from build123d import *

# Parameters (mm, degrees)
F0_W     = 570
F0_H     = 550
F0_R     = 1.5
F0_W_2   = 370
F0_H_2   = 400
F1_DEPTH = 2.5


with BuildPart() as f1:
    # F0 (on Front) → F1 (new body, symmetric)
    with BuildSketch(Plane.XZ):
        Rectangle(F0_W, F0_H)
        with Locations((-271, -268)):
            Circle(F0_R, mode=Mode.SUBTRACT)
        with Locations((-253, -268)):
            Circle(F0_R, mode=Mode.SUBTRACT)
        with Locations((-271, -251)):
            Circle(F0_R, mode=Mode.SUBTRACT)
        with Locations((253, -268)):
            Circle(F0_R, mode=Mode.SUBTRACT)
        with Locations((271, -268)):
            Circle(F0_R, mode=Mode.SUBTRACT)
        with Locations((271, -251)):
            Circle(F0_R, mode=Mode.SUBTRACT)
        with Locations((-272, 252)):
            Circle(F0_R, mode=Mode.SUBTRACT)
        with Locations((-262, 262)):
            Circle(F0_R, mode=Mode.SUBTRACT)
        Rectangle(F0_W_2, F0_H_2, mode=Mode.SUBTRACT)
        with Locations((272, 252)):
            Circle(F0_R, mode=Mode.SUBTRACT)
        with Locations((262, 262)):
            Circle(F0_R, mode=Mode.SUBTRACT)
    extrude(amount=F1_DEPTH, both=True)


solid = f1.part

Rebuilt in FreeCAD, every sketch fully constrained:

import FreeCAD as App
import Part
import Sketcher

V = App.Vector

doc = App.newDocument("Part")
params = doc.addObject("Spreadsheet::Sheet", "Params")
for row, (alias, value) in enumerate([
    ("sketch1_diameter", "3 mm"),
    ("sketch1_width", "570 mm"),
    ("sketch1_width2", "370 mm"),
    ("sketch1_height", "550 mm"),
    ("sketch1_height2", "400 mm"),
    ("pad1_length", "5 mm"),
], start=1):
    params.set(f"A{row}", alias)
    params.set(f"B{row}", "=" + value)
    params.setAlias(f"B{row}", alias)

body = doc.addObject("PartDesign::Body", "Body")

# Sketch on XZ plane
sketch1 = body.newObject("Sketcher::SketchObject", "Sketch")
sketch1.AttachmentSupport = (doc.getObject("XZ_Plane"), [""])
sketch1.MapMode = "FlatFace"
sketch1.addGeometry(Part.LineSegment(V(-285, 275, 0), V(-285, -275, 0)), False)
sketch1.addGeometry(Part.LineSegment(V(-285, -275, 0), V(285, -275, 0)), False)
sketch1.addGeometry(Part.LineSegment(V(285, -275, 0), V(285, 275, 0)), False)
sketch1.addGeometry(Part.LineSegment(V(285, 275, 0), V(-285, 275, 0)), False)
sketch1.addGeometry(Part.Circle(V(-271, -268, 0), V(0, 0, 1), 1.5), False)
sketch1.addGeometry(Part.Circle(V(-253, -268, 0), V(0, 0, 1), 1.5), False)
sketch1.addGeometry(Part.Circle(V(-271, -251, 0), V(0, 0, 1), 1.5), False)
sketch1.addGeometry(Part.Circle(V(253, -268, 0), V(0, 0, 1), 1.5), False)
sketch1.addGeometry(Part.Circle(V(271, -268, 0), V(0, 0, 1), 1.5), False)
sketch1.addGeometry(Part.Circle(V(271, -251, 0), V(0, 0, 1), 1.5), False)
sketch1.addGeometry(Part.Circle(V(-272, 252, 0), V(0, 0, 1), 1.5), False)
sketch1.addGeometry(Part.Circle(V(-262, 262, 0), V(0, 0, 1), 1.5), False)
sketch1.addGeometry(Part.LineSegment(V(185, -200, 0), V(-185, -200, 0)), False)
sketch1.addGeometry(Part.LineSegment(V(-185, -200, 0), V(-185, 200, 0)), False)
sketch1.addGeometry(Part.LineSegment(V(-185, 200, 0), V(185, 200, 0)), False)
sketch1.addGeometry(Part.LineSegment(V(185, 200, 0), V(185, -200, 0)), False)
sketch1.addGeometry(Part.Circle(V(272, 252, 0), V(0, 0, 1), 1.5), False)
sketch1.addGeometry(Part.Circle(V(262, 262, 0), V(0, 0, 1), 1.5), False)
sketch1.addConstraint(Sketcher.Constraint("Coincident", 0, 2, 1, 1))
sketch1.addConstraint(Sketcher.Constraint("Coincident", 1, 2, 2, 1))
sketch1.addConstraint(Sketcher.Constraint("Coincident", 2, 2, 3, 1))
sketch1.addConstraint(Sketcher.Constraint("Coincident", 3, 2, 0, 1))
sketch1.addConstraint(Sketcher.Constraint("Coincident", 12, 2, 13, 1))
sketch1.addConstraint(Sketcher.Constraint("Coincident", 13, 2, 14, 1))
sketch1.addConstraint(Sketcher.Constraint("Coincident", 14, 2, 15, 1))
sketch1.addConstraint(Sketcher.Constraint("Coincident", 15, 2, 12, 1))
sketch1.addConstraint(Sketcher.Constraint("Vertical", 0))
sketch1.addConstraint(Sketcher.Constraint("Horizontal", 1))
sketch1.addConstraint(Sketcher.Constraint("Vertical", 2))
sketch1.addConstraint(Sketcher.Constraint("Horizontal", 3))
sketch1.addConstraint(Sketcher.Constraint("Horizontal", 12))
sketch1.addConstraint(Sketcher.Constraint("Vertical", 13))
sketch1.addConstraint(Sketcher.Constraint("Horizontal", 14))
sketch1.addConstraint(Sketcher.Constraint("Vertical", 15))
sketch1.addConstraint(Sketcher.Constraint("Equal", 4, 5))
sketch1.addConstraint(Sketcher.Constraint("Equal", 5, 6))
sketch1.addConstraint(Sketcher.Constraint("Equal", 6, 7))
sketch1.addConstraint(Sketcher.Constraint("Equal", 7, 8))
sketch1.addConstraint(Sketcher.Constraint("Equal", 8, 9))
sketch1.addConstraint(Sketcher.Constraint("Equal", 9, 10))
sketch1.addConstraint(Sketcher.Constraint("Equal", 10, 11))
sketch1.addConstraint(Sketcher.Constraint("Equal", 11, 16))
sketch1.addConstraint(Sketcher.Constraint("Equal", 16, 17))
sketch1.addConstraint(Sketcher.Constraint("Symmetric", 0, 2, 2, 2, -1, 1))
sketch1.addConstraint(Sketcher.Constraint("Symmetric", 12, 2, 14, 2, -1, 1))
sketch1.addConstraint(Sketcher.Constraint("Symmetric", 5, 3, 7, 3, -2))
sketch1.addConstraint(Sketcher.Constraint("Symmetric", 4, 3, 8, 3, -2))
sketch1.addConstraint(Sketcher.Constraint("Symmetric", 6, 3, 9, 3, -2))
sketch1.addConstraint(Sketcher.Constraint("Symmetric", 10, 3, 16, 3, -2))
sketch1.addConstraint(Sketcher.Constraint("Symmetric", 11, 3, 17, 3, -2))
sketch1.addConstraint(Sketcher.Constraint("Horizontal", 4, 3, 5, 3))
sketch1.addConstraint(Sketcher.Constraint("Vertical", 4, 3, 6, 3))
sketch1.addConstraint(Sketcher.Constraint("Diameter", 4, 3.0))
sketch1.addConstraint(Sketcher.Constraint("DistanceX", 1, 1, 1, 2, 570.0))
sketch1.addConstraint(Sketcher.Constraint("DistanceX", 12, 2, 12, 1, 370.0))
sketch1.addConstraint(Sketcher.Constraint("DistanceY", 0, 2, 0, 1, 550.0))
sketch1.addConstraint(Sketcher.Constraint("DistanceY", 13, 1, 13, 2, 400.0))
sketch1.addConstraint(Sketcher.Constraint("DistanceX", 4, 3, -1, 1, 271.0))
sketch1.addConstraint(Sketcher.Constraint("DistanceY", 4, 3, -1, 1, 268.0))
sketch1.addConstraint(Sketcher.Constraint("DistanceX", 5, 3, -1, 1, 253.0))
sketch1.addConstraint(Sketcher.Constraint("DistanceY", 6, 3, -1, 1, 251.0))
sketch1.addConstraint(Sketcher.Constraint("DistanceX", 10, 3, -1, 1, 272.0))
sketch1.addConstraint(Sketcher.Constraint("DistanceY", -1, 1, 10, 3, 252.0))
sketch1.addConstraint(Sketcher.Constraint("DistanceX", 11, 3, -1, 1, 262.0))
sketch1.addConstraint(Sketcher.Constraint("DistanceY", -1, 1, 11, 3, 262.0))
sketch1.setExpression("Constraints[34]", "Params.sketch1_diameter")
sketch1.setExpression("Constraints[35]", "Params.sketch1_width")
sketch1.setExpression("Constraints[36]", "Params.sketch1_width2")
sketch1.setExpression("Constraints[37]", "Params.sketch1_height")
sketch1.setExpression("Constraints[38]", "Params.sketch1_height2")
pad1 = body.newObject("PartDesign::Pad", "Pad")
pad1.Profile = sketch1
pad1.setExpression("Length", "Params.pad1_length")
pad1.Midplane = True

doc.recompute()
